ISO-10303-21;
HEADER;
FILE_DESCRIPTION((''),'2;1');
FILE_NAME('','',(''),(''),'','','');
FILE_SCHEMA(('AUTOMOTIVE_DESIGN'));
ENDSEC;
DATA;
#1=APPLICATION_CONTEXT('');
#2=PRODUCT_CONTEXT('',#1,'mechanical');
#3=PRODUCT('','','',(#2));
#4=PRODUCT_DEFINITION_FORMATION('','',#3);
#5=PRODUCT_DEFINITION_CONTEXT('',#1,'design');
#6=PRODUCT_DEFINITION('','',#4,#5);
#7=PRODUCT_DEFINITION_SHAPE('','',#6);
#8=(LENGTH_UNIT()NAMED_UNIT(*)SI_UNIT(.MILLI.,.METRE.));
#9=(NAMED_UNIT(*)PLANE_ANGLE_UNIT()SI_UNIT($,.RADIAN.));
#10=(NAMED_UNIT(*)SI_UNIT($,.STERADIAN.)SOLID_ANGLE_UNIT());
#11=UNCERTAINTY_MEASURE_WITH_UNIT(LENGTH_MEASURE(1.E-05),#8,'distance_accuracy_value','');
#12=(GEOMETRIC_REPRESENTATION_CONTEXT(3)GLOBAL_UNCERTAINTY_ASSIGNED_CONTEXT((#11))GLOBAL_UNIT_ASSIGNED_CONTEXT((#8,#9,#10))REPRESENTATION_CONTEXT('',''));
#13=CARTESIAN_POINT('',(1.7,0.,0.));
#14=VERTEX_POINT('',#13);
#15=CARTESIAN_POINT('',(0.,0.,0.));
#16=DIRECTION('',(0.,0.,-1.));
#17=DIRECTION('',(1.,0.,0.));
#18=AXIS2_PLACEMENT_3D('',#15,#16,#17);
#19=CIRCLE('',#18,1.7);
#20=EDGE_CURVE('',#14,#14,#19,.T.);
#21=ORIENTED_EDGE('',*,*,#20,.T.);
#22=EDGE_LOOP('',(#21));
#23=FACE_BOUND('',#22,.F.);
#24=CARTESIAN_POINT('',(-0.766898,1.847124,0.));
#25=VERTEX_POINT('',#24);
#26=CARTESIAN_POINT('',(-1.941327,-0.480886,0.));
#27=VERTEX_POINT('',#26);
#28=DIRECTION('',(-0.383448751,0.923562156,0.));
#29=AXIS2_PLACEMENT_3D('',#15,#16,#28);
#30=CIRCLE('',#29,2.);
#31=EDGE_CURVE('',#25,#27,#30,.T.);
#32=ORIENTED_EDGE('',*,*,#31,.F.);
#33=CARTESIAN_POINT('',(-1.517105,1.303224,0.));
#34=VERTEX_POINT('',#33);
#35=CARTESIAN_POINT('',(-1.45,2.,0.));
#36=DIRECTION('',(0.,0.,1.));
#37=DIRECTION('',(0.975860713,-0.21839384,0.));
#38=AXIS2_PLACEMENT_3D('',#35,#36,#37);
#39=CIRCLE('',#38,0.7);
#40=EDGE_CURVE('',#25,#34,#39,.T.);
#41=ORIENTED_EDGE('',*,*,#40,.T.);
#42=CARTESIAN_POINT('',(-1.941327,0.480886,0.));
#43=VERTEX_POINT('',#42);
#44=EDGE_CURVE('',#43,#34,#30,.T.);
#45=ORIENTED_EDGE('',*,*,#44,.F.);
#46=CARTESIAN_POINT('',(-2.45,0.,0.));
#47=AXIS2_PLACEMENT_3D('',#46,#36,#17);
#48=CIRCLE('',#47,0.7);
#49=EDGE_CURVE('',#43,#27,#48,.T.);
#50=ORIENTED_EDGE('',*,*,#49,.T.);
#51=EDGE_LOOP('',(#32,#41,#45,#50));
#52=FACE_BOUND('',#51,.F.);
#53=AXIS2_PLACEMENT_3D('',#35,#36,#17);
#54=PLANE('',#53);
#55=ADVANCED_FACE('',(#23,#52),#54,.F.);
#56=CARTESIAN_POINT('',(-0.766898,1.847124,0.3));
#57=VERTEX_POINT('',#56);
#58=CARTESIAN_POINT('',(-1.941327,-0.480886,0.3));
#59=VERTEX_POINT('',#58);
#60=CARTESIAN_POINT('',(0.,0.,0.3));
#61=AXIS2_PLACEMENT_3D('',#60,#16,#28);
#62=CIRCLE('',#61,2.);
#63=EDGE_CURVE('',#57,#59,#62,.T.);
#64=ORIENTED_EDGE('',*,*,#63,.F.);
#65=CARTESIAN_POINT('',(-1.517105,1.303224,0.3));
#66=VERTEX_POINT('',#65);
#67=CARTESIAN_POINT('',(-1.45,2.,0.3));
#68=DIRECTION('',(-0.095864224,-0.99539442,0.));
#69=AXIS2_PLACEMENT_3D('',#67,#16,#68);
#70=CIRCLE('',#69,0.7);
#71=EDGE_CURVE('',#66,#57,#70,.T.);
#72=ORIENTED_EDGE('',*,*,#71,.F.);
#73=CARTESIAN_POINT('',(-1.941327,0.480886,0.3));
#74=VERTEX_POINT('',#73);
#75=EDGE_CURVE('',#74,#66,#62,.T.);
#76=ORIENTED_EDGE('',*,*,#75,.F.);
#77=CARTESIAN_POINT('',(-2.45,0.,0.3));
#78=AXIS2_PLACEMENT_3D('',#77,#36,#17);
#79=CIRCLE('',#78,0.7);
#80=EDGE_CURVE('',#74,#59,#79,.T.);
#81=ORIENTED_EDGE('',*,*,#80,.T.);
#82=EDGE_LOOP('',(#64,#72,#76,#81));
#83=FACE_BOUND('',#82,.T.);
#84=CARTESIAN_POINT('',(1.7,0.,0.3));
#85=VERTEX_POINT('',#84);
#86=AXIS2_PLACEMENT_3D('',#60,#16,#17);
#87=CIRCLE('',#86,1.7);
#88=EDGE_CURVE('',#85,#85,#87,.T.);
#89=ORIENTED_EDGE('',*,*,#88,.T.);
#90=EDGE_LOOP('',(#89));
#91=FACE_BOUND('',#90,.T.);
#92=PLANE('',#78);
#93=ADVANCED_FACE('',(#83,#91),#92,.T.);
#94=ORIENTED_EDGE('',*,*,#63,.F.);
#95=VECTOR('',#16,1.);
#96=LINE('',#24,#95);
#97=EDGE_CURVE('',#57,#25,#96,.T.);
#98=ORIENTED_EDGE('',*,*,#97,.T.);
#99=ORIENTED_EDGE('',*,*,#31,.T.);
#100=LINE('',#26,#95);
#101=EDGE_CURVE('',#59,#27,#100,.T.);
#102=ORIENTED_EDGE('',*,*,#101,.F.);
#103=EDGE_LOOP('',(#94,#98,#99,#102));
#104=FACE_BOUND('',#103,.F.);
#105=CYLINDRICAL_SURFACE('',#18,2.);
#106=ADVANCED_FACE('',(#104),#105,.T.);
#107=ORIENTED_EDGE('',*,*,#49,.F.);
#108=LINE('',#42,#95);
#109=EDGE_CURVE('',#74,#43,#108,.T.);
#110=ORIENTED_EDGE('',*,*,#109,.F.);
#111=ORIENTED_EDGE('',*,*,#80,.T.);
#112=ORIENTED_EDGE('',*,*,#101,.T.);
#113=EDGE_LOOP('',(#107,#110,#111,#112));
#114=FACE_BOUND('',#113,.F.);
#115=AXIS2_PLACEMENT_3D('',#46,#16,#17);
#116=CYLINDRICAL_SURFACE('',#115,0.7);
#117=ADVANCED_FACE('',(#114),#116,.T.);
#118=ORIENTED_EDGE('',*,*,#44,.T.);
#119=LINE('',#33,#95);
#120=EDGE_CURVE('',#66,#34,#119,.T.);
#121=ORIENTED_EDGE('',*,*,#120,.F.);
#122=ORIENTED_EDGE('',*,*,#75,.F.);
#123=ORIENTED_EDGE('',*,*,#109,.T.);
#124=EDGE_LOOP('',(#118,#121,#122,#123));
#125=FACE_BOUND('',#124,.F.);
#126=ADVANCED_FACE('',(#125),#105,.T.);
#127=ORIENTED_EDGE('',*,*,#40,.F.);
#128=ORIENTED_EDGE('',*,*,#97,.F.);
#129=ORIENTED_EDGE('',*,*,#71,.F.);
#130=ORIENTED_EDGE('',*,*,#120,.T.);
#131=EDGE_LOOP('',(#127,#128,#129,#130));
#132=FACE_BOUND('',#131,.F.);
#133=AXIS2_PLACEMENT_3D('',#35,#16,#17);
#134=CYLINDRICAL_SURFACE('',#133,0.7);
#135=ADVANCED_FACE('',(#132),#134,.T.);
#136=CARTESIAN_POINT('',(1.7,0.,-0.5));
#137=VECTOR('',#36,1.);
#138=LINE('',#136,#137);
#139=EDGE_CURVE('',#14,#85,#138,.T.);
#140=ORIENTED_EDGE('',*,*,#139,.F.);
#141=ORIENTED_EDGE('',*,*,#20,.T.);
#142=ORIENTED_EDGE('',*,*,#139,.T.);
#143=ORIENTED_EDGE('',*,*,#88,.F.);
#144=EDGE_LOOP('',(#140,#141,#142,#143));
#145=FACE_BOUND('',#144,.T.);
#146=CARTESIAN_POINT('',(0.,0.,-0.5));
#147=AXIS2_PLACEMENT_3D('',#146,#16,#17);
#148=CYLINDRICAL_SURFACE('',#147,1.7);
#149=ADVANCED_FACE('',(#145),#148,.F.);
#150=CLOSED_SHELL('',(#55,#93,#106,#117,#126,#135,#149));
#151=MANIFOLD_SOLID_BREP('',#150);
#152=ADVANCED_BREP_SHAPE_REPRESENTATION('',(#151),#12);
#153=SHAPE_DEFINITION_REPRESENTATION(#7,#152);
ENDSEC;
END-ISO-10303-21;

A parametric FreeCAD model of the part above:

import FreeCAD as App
import Part
import Sketcher

V = App.Vector
Q = App.Units.Quantity

doc = App.newDocument("Part")
body = doc.addObject("PartDesign::Body", "Body")

# Sketch on XY plane
sketch1 = body.newObject("Sketcher::SketchObject", "Sketch")
sketch1.AttachmentSupport = (doc.getObject("XY_Plane"), [""])
sketch1.MapMode = "FlatFace"
sketch1.addGeometry(Part.Circle(V(-2.5, 0, 0), V(0, 0, 1), 0.7), False)
sketch1.addConstraint([
    Sketcher.Constraint("PointOnObject", 0, 3, -1),
    Sketcher.Constraint("Diameter", 0, Q("1.4 mm")),
    Sketcher.Constraint("DistanceX", 0, 3, -1, 1, Q("2.45 mm")),
])
pad1 = body.newObject("PartDesign::Pad", "Pad")
pad1.Profile = sketch1
pad1.Length = 0.3
body2 = doc.addObject("PartDesign::Body", "Body001")

# Sketch on XY plane
sketch2 = body2.newObject("Sketcher::SketchObject", "Sketch001")
sketch2.AttachmentSupport = (doc.getObject("XY_Plane001"), [""])
sketch2.MapMode = "FlatFace"
sketch2.addGeometry(Part.Circle(V(-1.4, 2, 0), V(0, 0, 1), 0.7), False)
sketch2.addConstraint([
    Sketcher.Constraint("Diameter", 0, Q("1.4 mm")),
    Sketcher.Constraint("DistanceY", -1, 1, 0, 3, Q("2 mm")),
    Sketcher.Constraint("DistanceX", 0, 3, -1, 1, Q("1.45 mm")),
])
pad2 = body2.newObject("PartDesign::Pad", "Pad001")
pad2.Profile = sketch2
pad2.Length = 0.3
body3 = doc.addObject("PartDesign::Body", "Body002")

# Sketch on XY plane
sketch3 = body3.newObject("Sketcher::SketchObject", "Sketch002")
sketch3.AttachmentSupport = (doc.getObject("XY_Plane002"), [""])
sketch3.MapMode = "FlatFace"
sketch3.AttachmentOffset = App.Placement(V(0, 0, -0.5), App.Rotation())
sketch3.addGeometry(Part.Circle(V(0, 0, 0), V(0, 0, 1), 1.7), False)
sketch3.addConstraint([
    Sketcher.Constraint("Coincident", 0, 3, -1, 1),
    Sketcher.Constraint("Diameter", 0, Q("3.4 mm")),
])
pad3 = body3.newObject("PartDesign::Pad", "Pad002")
pad3.Profile = sketch3
pad3.Length = 1
body4 = doc.addObject("PartDesign::Body", "Body003")

# Sketch on XY plane
sketch4 = body4.newObject("Sketcher::SketchObject", "Sketch003")
sketch4.AttachmentSupport = (doc.getObject("XY_Plane003"), [""])
sketch4.MapMode = "FlatFace"
sketch4.addGeometry(Part.Circle(V(0, 0, 0), V(0, 0, 1), 2), False)
sketch4.addConstraint([
    Sketcher.Constraint("Coincident", 0, 3, -1, 1),
    Sketcher.Constraint("Diameter", 0, Q("4 mm")),
])
pad4 = body4.newObject("PartDesign::Pad", "Pad003")
pad4.Profile = sketch4
pad4.Length = 0.3
doc.recompute()

boolean = body4.newObject("PartDesign::Boolean", "Boolean")
boolean.Type = "Cut"
boolean.addObjects([body3])
doc.recompute()

boolean2 = body4.newObject("PartDesign::Boolean", "Boolean001")
boolean2.Type = "Fuse"
boolean2.addObjects([body2])
doc.recompute()

boolean3 = body4.newObject("PartDesign::Boolean", "Boolean002")
boolean3.Type = "Fuse"
boolean3.addObjects([body])

doc.recompute()
